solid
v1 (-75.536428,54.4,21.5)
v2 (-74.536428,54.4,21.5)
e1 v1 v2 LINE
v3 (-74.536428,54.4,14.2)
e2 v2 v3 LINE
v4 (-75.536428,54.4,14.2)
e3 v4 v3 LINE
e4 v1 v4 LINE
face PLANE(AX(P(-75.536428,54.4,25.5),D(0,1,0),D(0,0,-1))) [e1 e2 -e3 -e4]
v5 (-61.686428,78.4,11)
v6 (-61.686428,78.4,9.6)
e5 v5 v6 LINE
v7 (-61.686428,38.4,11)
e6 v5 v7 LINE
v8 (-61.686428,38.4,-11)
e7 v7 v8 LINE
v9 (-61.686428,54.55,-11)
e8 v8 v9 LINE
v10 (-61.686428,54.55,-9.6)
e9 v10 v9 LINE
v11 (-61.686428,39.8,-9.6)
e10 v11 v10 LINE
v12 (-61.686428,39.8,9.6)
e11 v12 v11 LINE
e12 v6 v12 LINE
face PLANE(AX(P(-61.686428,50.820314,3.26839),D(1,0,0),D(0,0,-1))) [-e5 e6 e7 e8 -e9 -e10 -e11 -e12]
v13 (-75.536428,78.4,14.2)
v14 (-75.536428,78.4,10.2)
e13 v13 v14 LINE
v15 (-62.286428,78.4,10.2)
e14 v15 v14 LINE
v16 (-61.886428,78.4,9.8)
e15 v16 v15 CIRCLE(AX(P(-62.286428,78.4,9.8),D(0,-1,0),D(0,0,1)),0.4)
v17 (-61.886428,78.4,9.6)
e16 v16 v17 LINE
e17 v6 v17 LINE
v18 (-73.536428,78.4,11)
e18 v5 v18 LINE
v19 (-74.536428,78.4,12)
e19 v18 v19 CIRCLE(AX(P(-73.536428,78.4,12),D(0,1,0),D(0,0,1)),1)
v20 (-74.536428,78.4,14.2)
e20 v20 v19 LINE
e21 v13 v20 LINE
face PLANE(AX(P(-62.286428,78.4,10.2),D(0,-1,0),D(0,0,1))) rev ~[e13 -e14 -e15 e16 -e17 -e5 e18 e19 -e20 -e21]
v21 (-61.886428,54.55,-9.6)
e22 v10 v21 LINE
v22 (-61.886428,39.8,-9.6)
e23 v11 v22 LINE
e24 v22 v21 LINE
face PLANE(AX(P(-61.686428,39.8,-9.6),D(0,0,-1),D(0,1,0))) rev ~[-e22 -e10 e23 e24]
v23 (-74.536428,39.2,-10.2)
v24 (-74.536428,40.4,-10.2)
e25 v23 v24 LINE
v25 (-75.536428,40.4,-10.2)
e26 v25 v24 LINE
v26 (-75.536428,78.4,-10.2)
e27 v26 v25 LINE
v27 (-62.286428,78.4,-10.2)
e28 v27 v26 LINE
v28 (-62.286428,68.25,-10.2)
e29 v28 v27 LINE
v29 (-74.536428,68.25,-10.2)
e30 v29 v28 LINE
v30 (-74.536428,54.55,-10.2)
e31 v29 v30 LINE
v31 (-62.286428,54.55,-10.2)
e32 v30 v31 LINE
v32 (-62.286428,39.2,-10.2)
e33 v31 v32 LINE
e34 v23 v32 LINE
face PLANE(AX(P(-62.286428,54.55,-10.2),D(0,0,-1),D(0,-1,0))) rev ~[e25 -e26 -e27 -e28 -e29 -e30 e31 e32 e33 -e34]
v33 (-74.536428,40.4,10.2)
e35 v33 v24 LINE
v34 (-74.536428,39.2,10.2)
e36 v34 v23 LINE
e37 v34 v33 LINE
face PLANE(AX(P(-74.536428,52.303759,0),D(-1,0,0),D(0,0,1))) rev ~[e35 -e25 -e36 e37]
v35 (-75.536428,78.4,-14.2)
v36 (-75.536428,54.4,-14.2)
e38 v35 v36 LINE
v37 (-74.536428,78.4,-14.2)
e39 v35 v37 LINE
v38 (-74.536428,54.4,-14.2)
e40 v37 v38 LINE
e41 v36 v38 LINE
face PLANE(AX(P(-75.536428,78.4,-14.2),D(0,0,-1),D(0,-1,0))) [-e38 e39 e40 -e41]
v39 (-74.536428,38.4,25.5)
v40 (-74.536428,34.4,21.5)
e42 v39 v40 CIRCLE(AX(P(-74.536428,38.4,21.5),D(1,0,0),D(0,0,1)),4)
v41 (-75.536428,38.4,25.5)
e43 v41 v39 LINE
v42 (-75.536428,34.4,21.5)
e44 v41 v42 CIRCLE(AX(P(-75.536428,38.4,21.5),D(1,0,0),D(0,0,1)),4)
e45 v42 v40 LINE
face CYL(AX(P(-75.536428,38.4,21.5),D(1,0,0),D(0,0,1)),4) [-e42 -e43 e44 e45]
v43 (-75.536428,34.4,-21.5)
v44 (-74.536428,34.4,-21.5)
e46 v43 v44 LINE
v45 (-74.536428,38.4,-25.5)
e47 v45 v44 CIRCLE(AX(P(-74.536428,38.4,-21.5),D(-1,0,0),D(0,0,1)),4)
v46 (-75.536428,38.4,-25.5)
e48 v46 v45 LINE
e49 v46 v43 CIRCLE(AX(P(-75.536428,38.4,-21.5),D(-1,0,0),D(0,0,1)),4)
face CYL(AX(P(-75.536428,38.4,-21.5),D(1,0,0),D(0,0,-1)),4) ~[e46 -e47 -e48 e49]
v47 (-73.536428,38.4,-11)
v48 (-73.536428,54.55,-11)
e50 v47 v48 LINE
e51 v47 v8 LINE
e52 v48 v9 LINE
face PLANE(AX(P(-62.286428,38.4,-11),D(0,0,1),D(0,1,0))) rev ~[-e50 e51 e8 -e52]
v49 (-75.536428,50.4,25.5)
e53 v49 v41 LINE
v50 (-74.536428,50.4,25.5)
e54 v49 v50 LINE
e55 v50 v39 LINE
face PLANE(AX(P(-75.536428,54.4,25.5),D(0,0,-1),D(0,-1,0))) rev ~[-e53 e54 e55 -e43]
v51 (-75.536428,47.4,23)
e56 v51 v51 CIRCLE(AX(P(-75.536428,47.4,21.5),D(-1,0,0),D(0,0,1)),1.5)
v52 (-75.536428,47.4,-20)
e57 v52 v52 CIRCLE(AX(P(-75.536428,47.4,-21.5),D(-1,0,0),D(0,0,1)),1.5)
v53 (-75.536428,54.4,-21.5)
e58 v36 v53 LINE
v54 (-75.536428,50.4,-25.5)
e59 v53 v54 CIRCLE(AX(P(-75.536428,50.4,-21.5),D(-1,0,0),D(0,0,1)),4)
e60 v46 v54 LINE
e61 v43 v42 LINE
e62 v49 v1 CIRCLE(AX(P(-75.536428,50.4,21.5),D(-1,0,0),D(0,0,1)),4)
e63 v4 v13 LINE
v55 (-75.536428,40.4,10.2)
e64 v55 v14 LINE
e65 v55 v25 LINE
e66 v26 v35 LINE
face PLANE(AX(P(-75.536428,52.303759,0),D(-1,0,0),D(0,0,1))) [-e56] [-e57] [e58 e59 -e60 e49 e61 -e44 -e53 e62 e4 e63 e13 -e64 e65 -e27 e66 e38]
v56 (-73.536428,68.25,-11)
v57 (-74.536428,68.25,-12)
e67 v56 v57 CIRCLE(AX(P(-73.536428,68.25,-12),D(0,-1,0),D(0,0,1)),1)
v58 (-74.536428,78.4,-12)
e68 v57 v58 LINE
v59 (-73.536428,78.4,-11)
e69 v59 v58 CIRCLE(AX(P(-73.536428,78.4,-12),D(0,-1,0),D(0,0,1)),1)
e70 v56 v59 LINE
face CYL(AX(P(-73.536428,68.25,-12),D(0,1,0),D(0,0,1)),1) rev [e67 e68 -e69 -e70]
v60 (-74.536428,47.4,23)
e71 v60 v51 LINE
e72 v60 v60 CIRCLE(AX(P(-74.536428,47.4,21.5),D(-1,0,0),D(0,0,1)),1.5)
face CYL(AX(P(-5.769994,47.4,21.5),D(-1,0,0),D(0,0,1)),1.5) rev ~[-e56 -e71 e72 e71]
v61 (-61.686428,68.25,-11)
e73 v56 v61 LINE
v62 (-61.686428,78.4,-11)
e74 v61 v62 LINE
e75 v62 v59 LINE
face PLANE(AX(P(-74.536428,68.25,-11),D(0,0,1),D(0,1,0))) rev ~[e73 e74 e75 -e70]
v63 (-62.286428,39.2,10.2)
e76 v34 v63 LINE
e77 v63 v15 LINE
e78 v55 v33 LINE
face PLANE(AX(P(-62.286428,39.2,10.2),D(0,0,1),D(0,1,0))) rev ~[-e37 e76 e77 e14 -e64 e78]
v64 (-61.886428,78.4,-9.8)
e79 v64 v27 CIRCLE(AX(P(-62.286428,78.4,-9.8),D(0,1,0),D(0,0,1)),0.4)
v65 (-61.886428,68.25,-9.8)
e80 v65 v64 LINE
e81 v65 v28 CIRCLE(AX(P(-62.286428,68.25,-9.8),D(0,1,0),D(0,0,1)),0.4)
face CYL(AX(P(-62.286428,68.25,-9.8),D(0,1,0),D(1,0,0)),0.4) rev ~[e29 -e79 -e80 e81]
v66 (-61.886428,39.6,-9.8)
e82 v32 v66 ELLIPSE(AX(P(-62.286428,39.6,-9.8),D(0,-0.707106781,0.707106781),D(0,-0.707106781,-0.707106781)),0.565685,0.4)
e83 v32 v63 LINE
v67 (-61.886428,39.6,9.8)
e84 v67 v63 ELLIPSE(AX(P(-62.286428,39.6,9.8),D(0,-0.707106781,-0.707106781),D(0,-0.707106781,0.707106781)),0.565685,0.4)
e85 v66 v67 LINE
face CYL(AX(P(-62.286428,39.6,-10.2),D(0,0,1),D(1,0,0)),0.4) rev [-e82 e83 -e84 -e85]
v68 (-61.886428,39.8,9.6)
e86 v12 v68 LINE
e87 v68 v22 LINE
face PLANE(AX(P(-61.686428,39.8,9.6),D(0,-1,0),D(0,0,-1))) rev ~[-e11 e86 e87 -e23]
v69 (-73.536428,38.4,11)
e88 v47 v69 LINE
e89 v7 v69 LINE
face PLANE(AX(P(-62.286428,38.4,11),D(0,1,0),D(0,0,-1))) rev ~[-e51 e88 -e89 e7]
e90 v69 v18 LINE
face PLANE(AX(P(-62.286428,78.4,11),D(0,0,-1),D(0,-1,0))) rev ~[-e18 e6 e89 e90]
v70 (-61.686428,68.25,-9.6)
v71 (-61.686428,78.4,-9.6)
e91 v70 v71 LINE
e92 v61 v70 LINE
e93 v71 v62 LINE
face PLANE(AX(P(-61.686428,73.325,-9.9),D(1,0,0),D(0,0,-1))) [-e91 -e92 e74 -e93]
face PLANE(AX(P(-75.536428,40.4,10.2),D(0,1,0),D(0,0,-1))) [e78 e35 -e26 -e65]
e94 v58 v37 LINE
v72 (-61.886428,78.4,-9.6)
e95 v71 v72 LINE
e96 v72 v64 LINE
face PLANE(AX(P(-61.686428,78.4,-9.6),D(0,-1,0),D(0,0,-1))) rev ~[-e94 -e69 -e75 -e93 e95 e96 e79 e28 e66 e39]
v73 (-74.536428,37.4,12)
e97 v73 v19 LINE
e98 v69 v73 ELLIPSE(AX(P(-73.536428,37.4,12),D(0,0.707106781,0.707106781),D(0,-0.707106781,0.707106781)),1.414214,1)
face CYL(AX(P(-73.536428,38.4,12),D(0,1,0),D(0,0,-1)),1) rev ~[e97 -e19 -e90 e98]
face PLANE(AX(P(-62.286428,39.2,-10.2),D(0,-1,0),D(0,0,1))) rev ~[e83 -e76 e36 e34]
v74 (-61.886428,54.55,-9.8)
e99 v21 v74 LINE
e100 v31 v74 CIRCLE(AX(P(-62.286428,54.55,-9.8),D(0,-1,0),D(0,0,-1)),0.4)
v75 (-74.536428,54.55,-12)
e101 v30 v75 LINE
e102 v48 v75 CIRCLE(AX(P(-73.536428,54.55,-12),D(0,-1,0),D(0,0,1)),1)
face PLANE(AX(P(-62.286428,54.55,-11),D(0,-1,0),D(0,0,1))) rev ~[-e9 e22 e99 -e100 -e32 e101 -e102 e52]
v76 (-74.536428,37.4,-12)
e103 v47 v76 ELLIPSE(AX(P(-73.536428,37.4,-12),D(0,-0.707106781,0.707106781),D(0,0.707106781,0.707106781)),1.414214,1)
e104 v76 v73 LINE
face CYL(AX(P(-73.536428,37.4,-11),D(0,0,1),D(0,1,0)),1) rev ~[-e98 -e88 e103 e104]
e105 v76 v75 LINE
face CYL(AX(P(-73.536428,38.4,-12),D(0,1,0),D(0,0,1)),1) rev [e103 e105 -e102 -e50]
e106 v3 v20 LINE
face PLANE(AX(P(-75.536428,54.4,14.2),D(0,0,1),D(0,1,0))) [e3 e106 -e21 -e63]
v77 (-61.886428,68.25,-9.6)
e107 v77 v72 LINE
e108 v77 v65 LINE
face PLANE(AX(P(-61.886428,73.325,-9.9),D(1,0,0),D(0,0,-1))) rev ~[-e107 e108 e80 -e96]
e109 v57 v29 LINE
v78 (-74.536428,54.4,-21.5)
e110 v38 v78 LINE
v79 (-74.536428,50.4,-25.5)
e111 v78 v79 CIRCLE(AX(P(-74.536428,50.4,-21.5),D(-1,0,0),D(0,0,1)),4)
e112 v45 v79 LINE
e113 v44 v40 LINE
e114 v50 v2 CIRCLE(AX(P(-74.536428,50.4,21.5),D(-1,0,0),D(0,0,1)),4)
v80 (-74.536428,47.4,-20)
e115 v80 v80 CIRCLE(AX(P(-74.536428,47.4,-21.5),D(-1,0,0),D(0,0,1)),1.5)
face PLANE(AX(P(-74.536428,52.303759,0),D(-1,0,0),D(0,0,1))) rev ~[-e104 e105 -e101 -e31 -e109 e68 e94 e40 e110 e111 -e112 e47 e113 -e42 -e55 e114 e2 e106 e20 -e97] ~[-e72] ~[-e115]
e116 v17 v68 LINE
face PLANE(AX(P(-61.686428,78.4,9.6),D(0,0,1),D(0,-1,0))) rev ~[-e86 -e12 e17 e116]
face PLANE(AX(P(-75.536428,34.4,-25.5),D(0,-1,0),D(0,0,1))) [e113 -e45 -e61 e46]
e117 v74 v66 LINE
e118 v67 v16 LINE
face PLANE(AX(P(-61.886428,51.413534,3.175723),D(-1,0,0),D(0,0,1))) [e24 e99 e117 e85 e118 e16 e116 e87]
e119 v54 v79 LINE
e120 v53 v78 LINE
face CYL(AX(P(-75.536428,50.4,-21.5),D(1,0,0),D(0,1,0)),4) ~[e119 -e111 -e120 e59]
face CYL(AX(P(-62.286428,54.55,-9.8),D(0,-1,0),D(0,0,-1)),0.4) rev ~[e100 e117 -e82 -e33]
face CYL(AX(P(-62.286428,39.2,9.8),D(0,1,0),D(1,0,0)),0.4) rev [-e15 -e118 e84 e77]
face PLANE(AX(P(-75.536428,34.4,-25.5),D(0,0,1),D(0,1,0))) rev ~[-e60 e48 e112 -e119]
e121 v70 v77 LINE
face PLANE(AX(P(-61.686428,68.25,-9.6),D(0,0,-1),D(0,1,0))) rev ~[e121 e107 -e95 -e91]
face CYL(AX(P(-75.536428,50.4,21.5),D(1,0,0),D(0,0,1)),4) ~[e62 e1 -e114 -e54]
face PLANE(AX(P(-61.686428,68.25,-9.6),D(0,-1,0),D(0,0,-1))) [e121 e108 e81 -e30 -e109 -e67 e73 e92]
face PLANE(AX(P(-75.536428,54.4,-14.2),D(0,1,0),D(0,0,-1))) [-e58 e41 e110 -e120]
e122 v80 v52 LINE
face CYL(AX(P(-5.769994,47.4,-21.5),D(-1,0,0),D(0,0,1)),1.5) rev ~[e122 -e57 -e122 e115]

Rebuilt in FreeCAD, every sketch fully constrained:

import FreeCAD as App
import Part
import Sketcher
from FreeCAD import Vector
Q = App.Units.Quantity


def edges_at(feature, points):
    """Names of the edges that pass closest to the given points."""
    edges = feature.Shape.Edges
    near = lambda p: min(range(len(edges)), key=lambda i: edges[i].distToShape(Part.Vertex(*p))[0])
    return sorted({f"Edge{near(p) + 1}" for p in points})


def add_polygon(sketch, points):
    """Adds a closed chain of lines whose ends are joined by coincident constraints."""
    first, n = sketch.GeometryCount, len(points)
    for a, b in zip(points, points[1:] + points[:1]):
        sketch.addGeometry(Part.LineSegment(App.Vector(*a, 0), App.Vector(*b, 0)), False)
    for i in range(n):
        sketch.addConstraint(Sketcher.Constraint("Coincident", first + i, 2, first + (i + 1) % n, 1))

doc = App.newDocument("Part")
body = doc.addObject("PartDesign::Body", "Body")

# Sketch on YZ plane
sketch1 = body.newObject("Sketcher::SketchObject", "Sketch")
sketch1.AttachmentSupport = (doc.getObject("YZ_Plane"), [""])
sketch1.MapMode = "FlatFace"
sketch1.AttachmentOffset = App.Placement(Vector(0, 0, -75.536428), App.Rotation())
add_polygon(sketch1, [(54.4, 25.5), (34.4, 25.5), (34.4, -25.5), (54.4, -25.5), (54.4, -14.2), (78.4, -14.2), (78.4, -10.2), (40.4, -10.2), (40.4, 10.2), (78.4, 10.2), (78.4, 14.2), (54.4, 14.2)])  # lines 0-11
sketch1.addConstraint([
    Sketcher.Constraint("Horizontal", 0),
    Sketcher.Constraint("Vertical", 1),
    Sketcher.Constraint("Horizontal", 2),
    Sketcher.Constraint("Vertical", 3),
    Sketcher.Constraint("Horizontal", 4),
    Sketcher.Constraint("Vertical", 5),
    Sketcher.Constraint("Horizontal", 6),
    Sketcher.Constraint("Vertical", 7),
    Sketcher.Constraint("Horizontal", 8),
    Sketcher.Constraint("Vertical", 9),
    Sketcher.Constraint("Horizontal", 10),
    Sketcher.Constraint("Vertical", 11),
    Sketcher.Constraint("Symmetric", 5, 2, 8, 2, -1),
    Sketcher.Constraint("Symmetric", 3, 2, 10, 2, -1),
    Sketcher.Constraint("Equal", 3, 11),
    Sketcher.Constraint("DistanceX", 0, 2, 0, 1, Q("20 mm")),
    Sketcher.Constraint("DistanceX", 4, 1, 4, 2, Q("24 mm")),
    Sketcher.Constraint("DistanceX", 6, 2, 6, 1, Q("38 mm")),
    Sketcher.Constraint("DistanceY", 1, 2, 1, 1, Q("51 mm")),
    Sketcher.Constraint("DistanceY", 5, 1, 5, 2, Q("4 mm")),
    Sketcher.Constraint("DistanceY", 3, 1, 3, 2, Q("11.3 mm")),
    Sketcher.Constraint("DistanceX", -1, 1, 0, 2, Q("34.4 mm")),
])
pad1 = body.newObject("PartDesign::Pad", "Pad")
pad1.Profile = sketch1
pad1.Length = 1
doc.recompute()

fillet = body.newObject("PartDesign::Fillet", "Fillet")
fillet.Base = (pad1, edges_at(pad1, [
    (-75.036, 54.4, -25.5),
    (-75.036, 34.4, -25.5),
    (-75.036, 34.4, 25.5),
    (-75.036, 54.4, 25.5),
]))
fillet.Radius = 4

# Sketch on YZ plane
sketch2 = body.newObject("Sketcher::SketchObject", "Sketch001")
sketch2.AttachmentSupport = (doc.getObject("YZ_Plane"), [""])
sketch2.MapMode = "FlatFace"
sketch2.AttachmentOffset = App.Placement(Vector(0, 0, -74.536428), App.Rotation())
add_polygon(sketch2, [(39.2, 10.2), (38.4, 10.2), (38.4, -10.2), (39.2, -10.2)])  # lines 0-3
sketch2.addConstraint([
    Sketcher.Constraint("Horizontal", 0),
    Sketcher.Constraint("Vertical", 1),
    Sketcher.Constraint("Horizontal", 2),
    Sketcher.Constraint("Vertical", 3),
    Sketcher.Constraint("DistanceX", 0, 2, 0, 1, Q("0.8 mm")),
    Sketcher.Constraint("DistanceY", 1, 2, 1, 1, Q("20.4 mm")),
    Sketcher.Constraint("DistanceX", -1, 1, 0, 2, Q("38.4 mm")),
    Sketcher.Constraint("DistanceY", -1, 1, 0, 2, Q("10.2 mm")),
])
pad2 = body.newObject("PartDesign::Pad", "Pad001")
pad2.Profile = sketch2
pad2.Length = 12.25

# Sketch on YZ plane
sketch3 = body.newObject("Sketcher::SketchObject", "Sketch002")
sketch3.AttachmentSupport = (doc.getObject("YZ_Plane"), [""])
sketch3.MapMode = "FlatFace"
sketch3.AttachmentOffset = App.Placement(Vector(0, 0, -74.536428), App.Rotation())
add_polygon(sketch3, [(78.4, 11), (38.4, 11), (38.4, 10.2), (78.4, 10.2)])  # lines 0-3
sketch3.addConstraint([
    Sketcher.Constraint("Horizontal", 0),
    Sketcher.Constraint("Vertical", 1),
    Sketcher.Constraint("Horizontal", 2),
    Sketcher.Constraint("Vertical", 3),
    Sketcher.Constraint("DistanceX", 0, 2, 0, 1, Q("40 mm")),
    Sketcher.Constraint("DistanceY", 1, 2, 1, 1, Q("0.8 mm")),
    Sketcher.Constraint("DistanceY", -1, 1, 0, 2, Q("11 mm")),
    Sketcher.Constraint("DistanceX", -1, 1, 0, 2, Q("38.4 mm")),
])
pad3 = body.newObject("PartDesign::Pad", "Pad002")
pad3.Profile = sketch3
pad3.Length = 12.25

# Sketch on YZ plane
sketch4 = body.newObject("Sketcher::SketchObject", "Sketch003")
sketch4.AttachmentSupport = (doc.getObject("YZ_Plane"), [""])
sketch4.MapMode = "FlatFace"
sketch4.AttachmentOffset = App.Placement(Vector(0, 0, -74.536428), App.Rotation())
add_polygon(sketch4, [(54.55, -10.2), (38.4, -10.2), (38.4, -11), (54.55, -11)])  # lines 0-3
add_polygon(sketch4, [(78.4, -10.2), (68.25, -10.2), (68.25, -11), (78.4, -11)])  # lines 4-7
sketch4.addConstraint([
    Sketcher.Constraint("Horizontal", 0),
    Sketcher.Constraint("Vertical", 1),
    Sketcher.Constraint("Horizontal", 2),
    Sketcher.Constraint("Vertical", 3),
    Sketcher.Constraint("Horizontal", 4),
    Sketcher.Constraint("Vertical", 5),
    Sketcher.Constraint("Horizontal", 6),
    Sketcher.Constraint("Vertical", 7),
    Sketcher.Constraint("Horizontal", 3, 2, 4, 2),
    Sketcher.Constraint("Horizontal", 2, 2, 5, 2),
    Sketcher.Constraint("DistanceY", 1, 2, 1, 1, Q("0.8 mm")),
    Sketcher.Constraint("DistanceY", 1, 2, -1, 1, Q("11 mm")),
    Sketcher.Constraint("DistanceX", 1, 2, 6, 2, Q("40 mm")),
    Sketcher.Constraint("DistanceX", 0, 2, 0, 1, Q("16.15 mm")),
    Sketcher.Constraint("DistanceX", 4, 2, 4, 1, Q("10.15 mm")),
    Sketcher.Constraint("DistanceX", -1, 1, 0, 2, Q("38.4 mm")),
])
pad4 = body.newObject("PartDesign::Pad", "Pad003")
pad4.Profile = sketch4
pad4.Length = 12.25
doc.recompute()

fillet2 = body.newObject("PartDesign::Fillet", "Fillet001")
fillet2.Base = (pad4, edges_at(pad4, [
    (-74.536, 46.475, -11),
    (-74.536, 73.325, -11),
    (-74.536, 38.4, 0),
    (-74.536, 58.4, 11),
]))
fillet2.Radius = 1

# Sketch on YZ plane
sketch5 = body.newObject("Sketcher::SketchObject", "Sketch004")
sketch5.AttachmentSupport = (doc.getObject("YZ_Plane"), [""])
sketch5.MapMode = "FlatFace"
sketch5.AttachmentOffset = App.Placement(Vector(0, 0, -62.286428), App.Rotation())
add_polygon(sketch5, [(38.4, 11), (38.4, -11), (54.55, -11), (54.55, -10.2), (39.2, -10.2), (39.2, 10.2), (78.4, 10.2), (78.4, 11)])  # lines 0-7
add_polygon(sketch5, [(78.4, -10.2), (68.25, -10.2), (68.25, -11), (78.4, -11)])  # lines 8-11
sketch5.addConstraint([
    Sketcher.Constraint("Vertical", 0),
    Sketcher.Constraint("Horizontal", 1),
    Sketcher.Constraint("Vertical", 2),
    Sketcher.Constraint("Horizontal", 3),
    Sketcher.Constraint("Vertical", 4),
    Sketcher.Constraint("Horizontal", 5),
    Sketcher.Constraint("Vertical", 6),
    Sketcher.Constraint("Horizontal", 7),
    Sketcher.Constraint("Horizontal", 8),
    Sketcher.Constraint("Vertical", 9),
    Sketcher.Constraint("Horizontal", 10),
    Sketcher.Constraint("Vertical", 11),
    Sketcher.Constraint("Symmetric", 6, 2, 10, 2, -1),
    Sketcher.Constraint("Horizontal", 3, 2, 8, 2),
    Sketcher.Constraint("Horizontal", 1, 2, 9, 2),
    Sketcher.Constraint("Equal", 2, 6),
    Sketcher.Constraint("DistanceX", 7, 2, 7, 1, Q("40 mm")),
    Sketcher.Constraint("DistanceY", 0, 2, 0, 1, Q("22 mm")),
    Sketcher.Constraint("DistanceX", 5, 1, 5, 2, Q("39.2 mm")),
    Sketcher.Constraint("DistanceY", 2, 1, 2, 2, Q("0.8 mm")),
    Sketcher.Constraint("DistanceX", 1, 1, 1, 2, Q("16.15 mm")),
    Sketcher.Constraint("DistanceX", 8, 2, 8, 1, Q("10.15 mm")),
    Sketcher.Constraint("DistanceX", -1, 1, 0, 2, Q("38.4 mm")),
])
pad5 = body.newObject("PartDesign::Pad", "Pad004")
pad5.Profile = sketch5
pad5.Length = 0.6

# Sketch on YZ plane
sketch6 = body.newObject("Sketcher::SketchObject", "Sketch005")
sketch6.AttachmentSupport = (doc.getObject("YZ_Plane"), [""])
sketch6.MapMode = "FlatFace"
sketch6.AttachmentOffset = App.Placement(Vector(0, 0, -61.686428), App.Rotation())
add_polygon(sketch6, [(78.4, -9.6), (68.25, -9.6), (68.25, -10.2), (78.4, -10.2)])  # lines 0-3
add_polygon(sketch6, [(39.2, -10.2), (54.55, -10.2), (54.55, -9.6), (39.8, -9.6), (39.8, 9.6), (78.4, 9.6), (78.4, 10.2), (39.2, 10.2)])  # lines 4-11
sketch6.addConstraint([
    Sketcher.Constraint("Horizontal", 0),
    Sketcher.Constraint("Vertical", 1),
    Sketcher.Constraint("Horizontal", 2),
    Sketcher.Constraint("Vertical", 3),
    Sketcher.Constraint("Horizontal", 4),
    Sketcher.Constraint("Vertical", 5),
    Sketcher.Constraint("Horizontal", 6),
    Sketcher.Constraint("Vertical", 7),
    Sketcher.Constraint("Horizontal", 8),
    Sketcher.Constraint("Vertical", 9),
    Sketcher.Constraint("Horizontal", 10),
    Sketcher.Constraint("Vertical", 11),
    Sketcher.Constraint("Symmetric", 3, 2, 8, 2, -1),
    Sketcher.Constraint("Horizontal", 2, 2, 4, 2),
    Sketcher.Constraint("Horizontal", 3, 2, 5, 2),
    Sketcher.Constraint("Equal", 5, 9),
    Sketcher.Constraint("DistanceX", 8, 1, 8, 2, Q("38.6 mm")),
    Sketcher.Constraint("DistanceX", 10, 2, 10, 1, Q("39.2 mm")),
    Sketcher.Constraint("DistanceY", 1, 2, 1, 1, Q("0.6 mm")),
    Sketcher.Constraint("DistanceY", 7, 1, 7, 2, Q("19.2 mm")),
    Sketcher.Constraint("DistanceX", 0, 2, 0, 1, Q("10.15 mm")),
    Sketcher.Constraint("DistanceX", 4, 1, 4, 2, Q("15.35 mm")),
    Sketcher.Constraint("DistanceX", -1, 1, 2, 2, Q("78.4 mm")),
])
pad6 = body.newObject("PartDesign::Pad", "Pad005")
pad6.Profile = sketch6
pad6.Length = 0.2
pad6.Reversed = True
doc.recompute()

fillet3 = body.newObject("PartDesign::Fillet", "Fillet002")
fillet3.Base = (pad6, edges_at(pad6, [
    (-61.886, 73.325, -10.2),
    (-61.886, 46.875, -10.2),
    (-61.886, 39.2, 0),
    (-61.886, 58.8, 10.2),
]))
fillet3.Radius = 0.4

# Sketch on YZ plane
sketch7 = body.newObject("Sketcher::SketchObject", "Sketch006")
sketch7.AttachmentSupport = (doc.getObject("YZ_Plane"), [""])
sketch7.MapMode = "FlatFace"
sketch7.AttachmentOffset = App.Placement(Vector(0, 0, -74.536428), App.Rotation())
sketch7.addGeometry([
    Part.Circle(Vector(47.4, -21.5, 0), Vector(0, 0, 1), 1.5),
    Part.Circle(Vector(47.4, 21.5, 0), Vector(0, 0, 1), 1.5),
], False)
sketch7.addConstraint([
    Sketcher.Constraint("Equal", 0, 1),
    Sketcher.Constraint("Symmetric", 0, 3, 1, 3, -1),
    Sketcher.Constraint("Diameter", 0, Q("3 mm")),
    Sketcher.Constraint("DistanceY", 0, 3, 1, 3, Q("43 mm")),
    Sketcher.Constraint("DistanceX", -1, 1, 0, 3, Q("47.4 mm")),
])
doc.recompute()
hole = body.newObject("PartDesign::Hole", "Hole")
hole.Profile = sketch7
hole.ThreadType = "None"
hole.Diameter = 3
hole.DepthType = "ThroughAll"

doc.recompute()
